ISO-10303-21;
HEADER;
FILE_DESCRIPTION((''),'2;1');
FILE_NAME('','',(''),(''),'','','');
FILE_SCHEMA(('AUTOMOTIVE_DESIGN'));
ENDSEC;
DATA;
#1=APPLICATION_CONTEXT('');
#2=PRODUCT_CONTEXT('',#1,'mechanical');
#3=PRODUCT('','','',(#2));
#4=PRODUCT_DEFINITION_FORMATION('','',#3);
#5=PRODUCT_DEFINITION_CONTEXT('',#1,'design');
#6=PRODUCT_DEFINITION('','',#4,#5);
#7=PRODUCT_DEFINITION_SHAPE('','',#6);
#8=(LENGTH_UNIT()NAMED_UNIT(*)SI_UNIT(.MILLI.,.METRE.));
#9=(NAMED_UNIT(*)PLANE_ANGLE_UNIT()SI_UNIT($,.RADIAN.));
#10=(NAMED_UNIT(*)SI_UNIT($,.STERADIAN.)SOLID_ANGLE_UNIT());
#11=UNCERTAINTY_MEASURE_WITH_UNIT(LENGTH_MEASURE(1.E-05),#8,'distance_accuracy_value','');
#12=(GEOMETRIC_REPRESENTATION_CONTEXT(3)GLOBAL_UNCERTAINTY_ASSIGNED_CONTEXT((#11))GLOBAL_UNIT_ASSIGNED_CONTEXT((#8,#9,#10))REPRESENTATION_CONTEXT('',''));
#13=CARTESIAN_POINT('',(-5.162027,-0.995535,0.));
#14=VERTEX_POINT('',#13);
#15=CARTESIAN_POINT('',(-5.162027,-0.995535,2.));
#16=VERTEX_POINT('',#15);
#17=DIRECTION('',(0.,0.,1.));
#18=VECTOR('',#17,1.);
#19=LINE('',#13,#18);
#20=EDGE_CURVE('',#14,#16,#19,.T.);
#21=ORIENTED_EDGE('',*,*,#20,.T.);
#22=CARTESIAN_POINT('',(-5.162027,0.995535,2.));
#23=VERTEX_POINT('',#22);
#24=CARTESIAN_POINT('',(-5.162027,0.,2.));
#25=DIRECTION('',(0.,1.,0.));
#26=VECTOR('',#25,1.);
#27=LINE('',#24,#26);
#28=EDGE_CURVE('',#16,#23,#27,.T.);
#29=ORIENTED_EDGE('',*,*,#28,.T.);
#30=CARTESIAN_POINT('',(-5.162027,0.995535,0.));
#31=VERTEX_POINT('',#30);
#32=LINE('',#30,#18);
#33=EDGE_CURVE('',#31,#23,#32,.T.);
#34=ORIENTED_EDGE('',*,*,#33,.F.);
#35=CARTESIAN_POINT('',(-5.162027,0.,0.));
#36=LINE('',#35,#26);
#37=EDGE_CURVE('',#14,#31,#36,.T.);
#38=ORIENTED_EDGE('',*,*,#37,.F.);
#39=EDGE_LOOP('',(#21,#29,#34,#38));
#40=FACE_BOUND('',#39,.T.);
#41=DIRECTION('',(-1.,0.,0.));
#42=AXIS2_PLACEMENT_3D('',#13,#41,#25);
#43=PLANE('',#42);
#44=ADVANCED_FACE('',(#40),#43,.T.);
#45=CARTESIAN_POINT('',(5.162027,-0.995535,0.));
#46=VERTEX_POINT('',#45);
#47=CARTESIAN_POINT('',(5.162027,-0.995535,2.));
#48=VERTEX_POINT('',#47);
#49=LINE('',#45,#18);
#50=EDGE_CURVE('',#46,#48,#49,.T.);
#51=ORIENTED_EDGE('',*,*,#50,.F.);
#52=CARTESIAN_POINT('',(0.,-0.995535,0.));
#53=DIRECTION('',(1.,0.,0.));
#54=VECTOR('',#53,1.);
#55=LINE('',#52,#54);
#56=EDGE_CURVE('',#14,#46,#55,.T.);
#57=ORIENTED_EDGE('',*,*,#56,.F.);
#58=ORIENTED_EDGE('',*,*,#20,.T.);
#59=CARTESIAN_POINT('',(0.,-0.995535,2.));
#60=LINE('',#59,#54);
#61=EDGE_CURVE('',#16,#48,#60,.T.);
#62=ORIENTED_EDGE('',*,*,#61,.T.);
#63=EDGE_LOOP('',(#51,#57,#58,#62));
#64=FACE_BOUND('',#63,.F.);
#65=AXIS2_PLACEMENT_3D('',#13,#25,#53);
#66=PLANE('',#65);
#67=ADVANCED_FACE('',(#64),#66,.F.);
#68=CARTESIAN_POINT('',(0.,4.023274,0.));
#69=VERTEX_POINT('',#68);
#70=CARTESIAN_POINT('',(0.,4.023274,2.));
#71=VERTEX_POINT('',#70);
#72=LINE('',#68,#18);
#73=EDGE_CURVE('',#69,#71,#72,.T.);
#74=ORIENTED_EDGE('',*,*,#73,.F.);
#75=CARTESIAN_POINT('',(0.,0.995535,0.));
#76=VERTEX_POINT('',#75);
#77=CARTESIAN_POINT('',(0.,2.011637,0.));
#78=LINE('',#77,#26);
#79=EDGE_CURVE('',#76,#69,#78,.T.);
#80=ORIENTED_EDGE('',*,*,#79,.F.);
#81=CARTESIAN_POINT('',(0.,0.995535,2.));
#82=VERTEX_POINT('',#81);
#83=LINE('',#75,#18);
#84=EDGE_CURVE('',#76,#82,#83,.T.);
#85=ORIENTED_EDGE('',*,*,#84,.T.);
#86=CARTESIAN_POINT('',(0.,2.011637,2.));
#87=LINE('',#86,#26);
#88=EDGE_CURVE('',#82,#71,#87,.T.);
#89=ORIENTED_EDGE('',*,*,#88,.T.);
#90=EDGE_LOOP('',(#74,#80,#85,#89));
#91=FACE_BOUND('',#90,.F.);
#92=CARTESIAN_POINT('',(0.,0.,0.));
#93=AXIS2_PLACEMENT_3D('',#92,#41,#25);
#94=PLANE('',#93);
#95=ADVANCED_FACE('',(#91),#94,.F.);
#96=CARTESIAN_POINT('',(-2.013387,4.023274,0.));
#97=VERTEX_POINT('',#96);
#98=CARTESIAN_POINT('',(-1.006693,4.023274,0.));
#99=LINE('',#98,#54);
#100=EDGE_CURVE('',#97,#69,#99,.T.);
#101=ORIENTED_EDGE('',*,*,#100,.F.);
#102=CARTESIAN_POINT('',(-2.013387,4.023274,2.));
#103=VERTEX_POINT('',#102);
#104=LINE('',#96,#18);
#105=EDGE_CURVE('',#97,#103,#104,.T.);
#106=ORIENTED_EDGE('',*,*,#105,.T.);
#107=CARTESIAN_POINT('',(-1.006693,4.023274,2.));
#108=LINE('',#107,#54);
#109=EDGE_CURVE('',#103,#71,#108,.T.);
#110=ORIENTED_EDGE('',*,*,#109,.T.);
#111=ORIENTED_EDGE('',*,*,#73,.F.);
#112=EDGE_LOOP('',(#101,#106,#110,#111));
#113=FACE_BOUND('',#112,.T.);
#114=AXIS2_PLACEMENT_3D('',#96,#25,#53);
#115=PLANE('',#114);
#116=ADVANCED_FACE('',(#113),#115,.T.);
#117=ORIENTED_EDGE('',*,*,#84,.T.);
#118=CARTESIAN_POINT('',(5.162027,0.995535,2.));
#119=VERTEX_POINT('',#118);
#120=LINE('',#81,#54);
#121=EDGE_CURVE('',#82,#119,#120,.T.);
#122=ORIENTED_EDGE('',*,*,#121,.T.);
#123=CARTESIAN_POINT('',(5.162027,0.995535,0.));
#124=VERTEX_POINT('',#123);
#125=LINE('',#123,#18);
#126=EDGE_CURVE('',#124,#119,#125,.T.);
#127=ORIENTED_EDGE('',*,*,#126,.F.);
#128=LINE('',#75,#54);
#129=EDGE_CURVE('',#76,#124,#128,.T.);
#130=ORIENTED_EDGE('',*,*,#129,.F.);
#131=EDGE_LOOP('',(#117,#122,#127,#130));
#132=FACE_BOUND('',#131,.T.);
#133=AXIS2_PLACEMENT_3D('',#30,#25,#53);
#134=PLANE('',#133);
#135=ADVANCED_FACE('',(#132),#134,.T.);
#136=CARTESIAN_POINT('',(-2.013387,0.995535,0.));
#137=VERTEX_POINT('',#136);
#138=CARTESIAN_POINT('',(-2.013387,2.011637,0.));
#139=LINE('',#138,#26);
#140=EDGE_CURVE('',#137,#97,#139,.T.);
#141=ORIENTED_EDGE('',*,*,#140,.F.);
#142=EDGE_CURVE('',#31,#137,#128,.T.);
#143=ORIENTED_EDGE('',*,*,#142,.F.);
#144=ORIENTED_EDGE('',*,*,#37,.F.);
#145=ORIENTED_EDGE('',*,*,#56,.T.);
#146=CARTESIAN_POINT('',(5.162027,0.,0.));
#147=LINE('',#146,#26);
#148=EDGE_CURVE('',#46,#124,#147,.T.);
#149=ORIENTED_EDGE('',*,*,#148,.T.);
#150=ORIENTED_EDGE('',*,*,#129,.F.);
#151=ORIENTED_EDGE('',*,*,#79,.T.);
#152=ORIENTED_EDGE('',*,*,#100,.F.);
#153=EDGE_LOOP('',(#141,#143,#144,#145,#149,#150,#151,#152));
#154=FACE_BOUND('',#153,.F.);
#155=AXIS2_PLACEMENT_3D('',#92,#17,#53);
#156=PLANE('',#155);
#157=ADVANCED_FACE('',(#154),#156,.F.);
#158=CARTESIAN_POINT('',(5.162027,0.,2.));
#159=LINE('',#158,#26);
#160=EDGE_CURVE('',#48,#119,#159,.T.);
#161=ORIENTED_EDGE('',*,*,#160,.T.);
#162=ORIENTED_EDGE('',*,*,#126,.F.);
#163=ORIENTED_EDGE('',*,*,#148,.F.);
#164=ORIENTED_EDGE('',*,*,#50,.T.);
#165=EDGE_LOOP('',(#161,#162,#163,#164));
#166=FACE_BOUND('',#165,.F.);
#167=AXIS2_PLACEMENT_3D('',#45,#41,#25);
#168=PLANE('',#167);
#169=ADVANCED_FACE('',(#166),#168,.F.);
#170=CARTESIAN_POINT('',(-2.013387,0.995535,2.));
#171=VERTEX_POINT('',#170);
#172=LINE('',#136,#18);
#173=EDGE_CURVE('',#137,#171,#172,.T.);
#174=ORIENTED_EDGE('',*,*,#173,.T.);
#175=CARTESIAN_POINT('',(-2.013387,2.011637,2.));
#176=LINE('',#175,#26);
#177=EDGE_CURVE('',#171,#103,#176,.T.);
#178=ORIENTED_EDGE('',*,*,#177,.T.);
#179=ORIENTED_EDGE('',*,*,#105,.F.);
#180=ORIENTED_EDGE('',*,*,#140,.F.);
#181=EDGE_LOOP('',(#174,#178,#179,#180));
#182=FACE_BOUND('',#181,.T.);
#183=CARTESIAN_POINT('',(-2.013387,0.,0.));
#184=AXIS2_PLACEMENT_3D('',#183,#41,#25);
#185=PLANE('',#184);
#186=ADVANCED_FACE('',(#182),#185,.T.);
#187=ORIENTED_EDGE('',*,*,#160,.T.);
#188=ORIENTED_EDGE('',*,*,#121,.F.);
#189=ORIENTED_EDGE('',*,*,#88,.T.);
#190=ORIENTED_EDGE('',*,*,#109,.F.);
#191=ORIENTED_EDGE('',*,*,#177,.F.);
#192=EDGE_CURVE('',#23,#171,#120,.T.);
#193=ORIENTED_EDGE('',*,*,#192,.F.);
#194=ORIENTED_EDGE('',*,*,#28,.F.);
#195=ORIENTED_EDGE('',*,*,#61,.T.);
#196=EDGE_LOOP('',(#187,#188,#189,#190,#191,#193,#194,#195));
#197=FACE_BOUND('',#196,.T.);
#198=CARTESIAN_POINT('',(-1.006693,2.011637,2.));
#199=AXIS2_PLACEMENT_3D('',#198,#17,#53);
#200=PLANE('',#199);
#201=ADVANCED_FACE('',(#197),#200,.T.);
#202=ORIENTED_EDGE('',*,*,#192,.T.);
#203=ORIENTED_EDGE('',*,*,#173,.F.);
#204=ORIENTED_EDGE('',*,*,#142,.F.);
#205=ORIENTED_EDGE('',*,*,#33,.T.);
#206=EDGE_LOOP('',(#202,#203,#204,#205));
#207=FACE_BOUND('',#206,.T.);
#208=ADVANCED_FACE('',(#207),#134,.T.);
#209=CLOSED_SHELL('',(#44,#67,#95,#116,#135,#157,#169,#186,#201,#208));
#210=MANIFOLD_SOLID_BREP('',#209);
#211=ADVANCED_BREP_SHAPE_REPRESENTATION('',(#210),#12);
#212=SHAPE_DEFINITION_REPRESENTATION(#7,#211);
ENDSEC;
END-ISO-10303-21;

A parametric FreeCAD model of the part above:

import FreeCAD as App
import Part
import Sketcher


def add_polygon(sketch, points):
    """Adds a closed chain of lines whose ends are joined by coincident constraints."""
    first, n = sketch.GeometryCount, len(points)
    for a, b in zip(points, points[1:] + points[:1]):
        sketch.addGeometry(Part.LineSegment(App.Vector(*a, 0), App.Vector(*b, 0)), False)
    for i in range(n):
        sketch.addConstraint(Sketcher.Constraint("Coincident", first + i, 2, first + (i + 1) % n, 1))

doc = App.newDocument("Part")
params = doc.addObject("Spreadsheet::Sheet", "Params")
for row, (alias, value) in enumerate([
    ("pad1_length", "2 mm"),
    ("pad2_length", "2 mm"),
], start=1):
    params.set(f"A{row}", alias)
    params.set(f"B{row}", "=" + value)
    params.setAlias(f"B{row}", alias)

body = doc.addObject("PartDesign::Body", "Body")

sketch1 = body.newObject("Sketcher::SketchObject", "Sketch")
sketch1.AttachmentSupport = (doc.getObject("XY_Plane"), [""])
sketch1.MapMode = "FlatFace"
add_polygon(sketch1, [(-5.2, 1), (-5.2, -1), (5.2, -1), (5.2, 1)])
sketch1.addConstraint([
    Sketcher.Constraint("Vertical", 0),
    Sketcher.Constraint("Horizontal", 1),
    Sketcher.Constraint("Vertical", 2),
    Sketcher.Constraint("Horizontal", 3),
    Sketcher.Constraint("Symmetric", 0, 2, 2, 2, -1, 1),
    Sketcher.Constraint("DistanceY", 0, 2, 0, 1, 1.99107),
    Sketcher.Constraint("DistanceX", 1, 1, 1, 2, 10.324054),
])
pad1 = body.newObject("PartDesign::Pad", "Pad")
pad1.Profile = sketch1
pad1.setExpression("Length", "Params.pad1_length")

sketch2 = body.newObject("Sketcher::SketchObject", "Sketch001")
sketch2.AttachmentSupport = (doc.getObject("XY_Plane"), [""])
sketch2.MapMode = "FlatFace"
add_polygon(sketch2, [(-2, 4), (-2, 0), (0, 0), (0, 4)])
sketch2.addConstraint([
    Sketcher.Constraint("Vertical", 0),
    Sketcher.Constraint("Horizontal", 1),
    Sketcher.Constraint("Vertical", 2),
    Sketcher.Constraint("Horizontal", 3),
    Sketcher.Constraint("Coincident", 1, 2, -1, 1),
    Sketcher.Constraint("DistanceX", 1, 1, 1, 2, 2.013387),
    Sketcher.Constraint("DistanceY", 0, 2, 0, 1, 4.023274),
])
pad2 = body.newObject("PartDesign::Pad", "Pad001")
pad2.Profile = sketch2
pad2.setExpression("Length", "Params.pad2_length")

doc.recompute()
